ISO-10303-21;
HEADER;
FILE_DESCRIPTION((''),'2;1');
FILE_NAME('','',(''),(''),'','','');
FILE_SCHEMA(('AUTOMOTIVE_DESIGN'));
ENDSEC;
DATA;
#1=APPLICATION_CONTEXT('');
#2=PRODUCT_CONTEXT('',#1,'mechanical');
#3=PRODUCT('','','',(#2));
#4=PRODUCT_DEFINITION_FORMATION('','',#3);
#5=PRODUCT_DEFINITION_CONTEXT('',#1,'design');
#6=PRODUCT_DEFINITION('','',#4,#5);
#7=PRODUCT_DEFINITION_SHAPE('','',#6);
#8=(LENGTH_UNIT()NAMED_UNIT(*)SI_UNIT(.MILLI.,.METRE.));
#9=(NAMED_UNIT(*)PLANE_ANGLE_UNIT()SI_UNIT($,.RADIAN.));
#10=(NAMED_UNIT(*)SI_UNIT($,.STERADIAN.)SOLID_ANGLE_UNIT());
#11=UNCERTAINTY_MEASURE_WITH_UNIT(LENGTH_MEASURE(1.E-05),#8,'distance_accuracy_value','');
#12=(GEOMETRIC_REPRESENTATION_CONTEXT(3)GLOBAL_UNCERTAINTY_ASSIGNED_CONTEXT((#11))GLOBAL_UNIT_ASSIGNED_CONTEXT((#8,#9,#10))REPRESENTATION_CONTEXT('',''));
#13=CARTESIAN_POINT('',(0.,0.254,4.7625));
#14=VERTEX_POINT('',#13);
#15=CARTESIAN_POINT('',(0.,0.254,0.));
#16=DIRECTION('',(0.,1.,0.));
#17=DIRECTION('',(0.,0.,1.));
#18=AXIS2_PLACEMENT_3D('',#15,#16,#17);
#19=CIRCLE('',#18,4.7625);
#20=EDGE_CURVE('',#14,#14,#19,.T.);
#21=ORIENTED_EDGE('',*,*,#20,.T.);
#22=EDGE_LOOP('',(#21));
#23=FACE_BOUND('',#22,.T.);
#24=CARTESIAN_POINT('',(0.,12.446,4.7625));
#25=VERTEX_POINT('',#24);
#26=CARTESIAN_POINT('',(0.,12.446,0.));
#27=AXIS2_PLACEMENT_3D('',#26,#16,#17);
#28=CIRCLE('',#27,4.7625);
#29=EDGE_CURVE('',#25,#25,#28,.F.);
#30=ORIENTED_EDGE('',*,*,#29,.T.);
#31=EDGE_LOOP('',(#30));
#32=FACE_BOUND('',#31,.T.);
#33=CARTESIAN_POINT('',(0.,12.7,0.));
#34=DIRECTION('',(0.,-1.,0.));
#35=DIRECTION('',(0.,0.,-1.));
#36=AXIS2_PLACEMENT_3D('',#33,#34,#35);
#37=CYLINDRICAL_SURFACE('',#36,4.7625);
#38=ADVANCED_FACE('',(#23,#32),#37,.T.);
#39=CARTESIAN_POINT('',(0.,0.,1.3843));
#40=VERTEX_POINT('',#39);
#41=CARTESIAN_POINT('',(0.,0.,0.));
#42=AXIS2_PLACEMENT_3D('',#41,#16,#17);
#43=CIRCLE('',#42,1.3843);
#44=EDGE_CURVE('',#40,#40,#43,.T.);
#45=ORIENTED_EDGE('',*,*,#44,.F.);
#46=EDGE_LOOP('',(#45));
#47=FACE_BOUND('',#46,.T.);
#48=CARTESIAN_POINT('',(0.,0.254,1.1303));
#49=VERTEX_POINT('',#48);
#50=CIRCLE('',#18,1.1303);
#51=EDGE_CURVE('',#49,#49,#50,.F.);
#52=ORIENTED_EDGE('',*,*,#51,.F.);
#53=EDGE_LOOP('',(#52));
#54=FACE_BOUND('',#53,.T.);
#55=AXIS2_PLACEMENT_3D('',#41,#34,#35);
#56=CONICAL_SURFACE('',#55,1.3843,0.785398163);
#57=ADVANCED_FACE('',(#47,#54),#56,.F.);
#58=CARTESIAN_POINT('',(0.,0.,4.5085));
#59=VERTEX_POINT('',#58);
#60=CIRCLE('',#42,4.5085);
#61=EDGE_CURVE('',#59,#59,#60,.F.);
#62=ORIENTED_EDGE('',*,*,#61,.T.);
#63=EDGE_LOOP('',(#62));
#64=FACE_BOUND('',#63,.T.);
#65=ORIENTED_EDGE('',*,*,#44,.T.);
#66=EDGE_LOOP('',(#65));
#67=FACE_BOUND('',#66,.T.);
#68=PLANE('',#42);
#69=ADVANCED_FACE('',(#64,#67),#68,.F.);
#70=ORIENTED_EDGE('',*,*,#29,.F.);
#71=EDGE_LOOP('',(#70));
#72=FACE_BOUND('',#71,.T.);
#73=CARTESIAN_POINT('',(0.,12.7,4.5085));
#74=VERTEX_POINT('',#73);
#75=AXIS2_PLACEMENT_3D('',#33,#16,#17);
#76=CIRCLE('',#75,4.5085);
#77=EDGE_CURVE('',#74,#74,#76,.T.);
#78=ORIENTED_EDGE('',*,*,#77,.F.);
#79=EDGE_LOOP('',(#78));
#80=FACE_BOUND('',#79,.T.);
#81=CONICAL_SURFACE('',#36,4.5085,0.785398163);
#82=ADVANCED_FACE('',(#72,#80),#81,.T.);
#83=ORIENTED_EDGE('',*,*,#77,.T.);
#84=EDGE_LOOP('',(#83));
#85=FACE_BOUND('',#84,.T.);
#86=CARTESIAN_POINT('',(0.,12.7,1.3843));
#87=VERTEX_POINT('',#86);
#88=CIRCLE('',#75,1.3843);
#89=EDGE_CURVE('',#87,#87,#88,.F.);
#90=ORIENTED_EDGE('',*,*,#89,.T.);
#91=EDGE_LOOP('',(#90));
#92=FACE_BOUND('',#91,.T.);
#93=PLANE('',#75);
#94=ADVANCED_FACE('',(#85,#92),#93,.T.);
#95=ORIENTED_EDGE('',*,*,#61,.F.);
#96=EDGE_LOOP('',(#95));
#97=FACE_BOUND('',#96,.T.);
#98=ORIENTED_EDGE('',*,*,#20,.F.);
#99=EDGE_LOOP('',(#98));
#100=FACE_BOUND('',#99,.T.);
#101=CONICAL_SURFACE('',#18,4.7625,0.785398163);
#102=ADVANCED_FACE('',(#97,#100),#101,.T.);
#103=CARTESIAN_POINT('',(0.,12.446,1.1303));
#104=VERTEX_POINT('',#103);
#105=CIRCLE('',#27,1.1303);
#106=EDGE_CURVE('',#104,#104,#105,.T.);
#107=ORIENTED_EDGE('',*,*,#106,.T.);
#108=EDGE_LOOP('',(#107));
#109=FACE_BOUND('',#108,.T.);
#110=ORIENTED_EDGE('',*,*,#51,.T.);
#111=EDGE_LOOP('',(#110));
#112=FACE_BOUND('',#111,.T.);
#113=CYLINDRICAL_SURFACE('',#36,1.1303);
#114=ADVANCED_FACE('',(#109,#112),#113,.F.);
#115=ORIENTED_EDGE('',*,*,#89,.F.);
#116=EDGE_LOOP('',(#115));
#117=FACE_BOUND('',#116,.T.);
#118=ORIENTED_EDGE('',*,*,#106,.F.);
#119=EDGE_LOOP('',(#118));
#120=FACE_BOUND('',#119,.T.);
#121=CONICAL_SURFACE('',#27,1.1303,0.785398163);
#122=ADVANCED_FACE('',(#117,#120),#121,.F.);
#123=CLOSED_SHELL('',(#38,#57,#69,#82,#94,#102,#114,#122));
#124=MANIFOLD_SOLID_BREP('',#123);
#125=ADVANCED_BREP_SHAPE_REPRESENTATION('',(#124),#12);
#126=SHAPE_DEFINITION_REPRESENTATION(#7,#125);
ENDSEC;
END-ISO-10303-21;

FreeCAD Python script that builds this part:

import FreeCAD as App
import Part
import Sketcher
from FreeCAD import Vector
Q = App.Units.Quantity


def edges_at(feature, points):
    """Names of the edges that pass closest to the given points."""
    edges = feature.Shape.Edges
    near = lambda p: min(range(len(edges)), key=lambda i: edges[i].distToShape(Part.Vertex(*p))[0])
    return sorted({f"Edge{near(p) + 1}" for p in points})

doc = App.newDocument("Part")
body = doc.addObject("PartDesign::Body", "Body")

sketch1 = doc.addObject("Sketcher::SketchObject", "Sketch")
body.addObject(sketch1)
sketch1.AttachmentSupport = (doc.XZ_Plane, [""])
sketch1.MapMode = "FlatFace"
sketch1.addGeometry([
    Part.Circle(Vector(0, 0, 0), Vector(0, 0, 1), 4.8),
    Part.Circle(Vector(0, 0, 0), Vector(0, 0, 1), 1.1),
], False)
sketch1.addConstraint([
    Sketcher.Constraint("Coincident", 0, 3, -1, 1),
    Sketcher.Constraint("Coincident", 1, 3, -1, 1),
    Sketcher.Constraint("Diameter", 0, Q("0.375 in")),
    Sketcher.Constraint("Diameter", 1, Q("0.089 in")),
])
pad1 = doc.addObject("PartDesign::Pad", "Pad")
body.addObject(pad1)
pad1.Profile = sketch1
pad1.Length = Q("0.5 in")
pad1.Reversed = True
doc.recompute()

chamfer = doc.addObject("PartDesign::Chamfer", "Chamfer")
body.addObject(chamfer)
chamfer.Base = (pad1, edges_at(pad1, [
    (0, 0, -4.763),
    (0, 12.7, -4.763),
    (0, 0, -1.13),
    (0, 12.7, -1.13),
]))
chamfer.Size = Q("0.01 in")

doc.recompute()
